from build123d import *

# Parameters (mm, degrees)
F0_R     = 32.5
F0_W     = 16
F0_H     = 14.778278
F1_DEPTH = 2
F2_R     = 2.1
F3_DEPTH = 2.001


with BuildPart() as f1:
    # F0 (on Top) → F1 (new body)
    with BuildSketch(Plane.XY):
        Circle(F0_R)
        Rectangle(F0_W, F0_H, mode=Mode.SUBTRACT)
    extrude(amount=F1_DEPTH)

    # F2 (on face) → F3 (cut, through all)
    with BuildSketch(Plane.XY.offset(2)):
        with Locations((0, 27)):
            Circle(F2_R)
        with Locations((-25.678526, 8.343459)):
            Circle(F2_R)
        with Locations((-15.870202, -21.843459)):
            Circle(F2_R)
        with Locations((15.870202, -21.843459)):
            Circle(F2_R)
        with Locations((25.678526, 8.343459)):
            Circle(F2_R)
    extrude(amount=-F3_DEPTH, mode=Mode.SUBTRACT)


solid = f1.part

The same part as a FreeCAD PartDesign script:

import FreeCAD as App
import Part
import Sketcher
from FreeCAD import Vector
Q = App.Units.Quantity


def add_polygon(sketch, points):
    """Adds a closed chain of lines whose ends are joined by coincident constraints."""
    first, n = sketch.GeometryCount, len(points)
    for a, b in zip(points, points[1:] + points[:1]):
        sketch.addGeometry(Part.LineSegment(App.Vector(*a, 0), App.Vector(*b, 0)), False)
    for i in range(n):
        sketch.addConstraint(Sketcher.Constraint("Coincident", first + i, 2, first + (i + 1) % n, 1))

doc = App.newDocument("Part")
body = doc.addObject("PartDesign::Body", "Body")

sketch1 = body.newObject("Sketcher::SketchObject", "Sketch")
sketch1.AttachmentSupport = (doc.getObject("XY_Plane"), [""])
sketch1.MapMode = "FlatFace"
sketch1.addGeometry(Part.Circle(Vector(0, 0, 0), Vector(0, 0, 1), 32), False)
add_polygon(sketch1, [(8, -7), (-8, -7), (-8, 7), (8, 7)])
sketch1.addConstraint([
    Sketcher.Constraint("Horizontal", 1),
    Sketcher.Constraint("Vertical", 2),
    Sketcher.Constraint("Horizontal", 3),
    Sketcher.Constraint("Vertical", 4),
    Sketcher.Constraint("Coincident", 0, 3, -1, 1),
    Sketcher.Constraint("Symmetric", 1, 2, 3, 2, -1, 1),
    Sketcher.Constraint("Diameter", 0, Q("65 mm")),
    Sketcher.Constraint("DistanceX", 1, 2, 1, 1, Q("16 mm")),
    Sketcher.Constraint("DistanceY", 2, 1, 2, 2, Q("14.778278 mm")),
])
pad1 = body.newObject("PartDesign::Pad", "Pad")
pad1.Profile = sketch1
pad1.Length = 2

sketch2 = body.newObject("Sketcher::SketchObject", "Sketch001")
sketch2.AttachmentSupport = (doc.getObject("XY_Plane"), [""])
sketch2.MapMode = "FlatFace"
sketch2.AttachmentOffset = App.Placement(Vector(0, 0, 2), App.Rotation())
sketch2.addGeometry([
    Part.Circle(Vector(0, 27, 0), Vector(0, 0, 1), 2.1),
    Part.Circle(Vector(-25.7, 8.3, 0), Vector(0, 0, 1), 2.1),
    Part.Circle(Vector(-15.9, -21.8, 0), Vector(0, 0, 1), 2.1),
    Part.Circle(Vector(15.9, -21.8, 0), Vector(0, 0, 1), 2.1),
    Part.Circle(Vector(25.7, 8.3, 0), Vector(0, 0, 1), 2.1),
], False)
sketch2.addConstraint([
    Sketcher.Constraint("Equal", 0, 1),
    Sketcher.Constraint("Equal", 1, 2),
    Sketcher.Constraint("Equal", 2, 3),
    Sketcher.Constraint("Equal", 3, 4),
    Sketcher.Constraint("Symmetric", 2, 3, 3, 3, -2),
    Sketcher.Constraint("Symmetric", 1, 3, 4, 3, -2),
    Sketcher.Constraint("PointOnObject", 0, 3, -2),
    Sketcher.Constraint("Diameter", 0, Q("4.2 mm")),
    Sketcher.Constraint("DistanceY", -1, 1, 0, 3, Q("27 mm")),
    Sketcher.Constraint("DistanceY", -1, 1, 1, 3, Q("8.343459 mm")),
    Sketcher.Constraint("DistanceY", 2, 3, -1, 1, Q("21.843459 mm")),
    Sketcher.Constraint("DistanceX", 1, 3, 3, 3, Q("41.548728 mm")),
    Sketcher.Constraint("DistanceX", 1, 3, -1, 1, Q("25.678526 mm")),
])
pocket1 = body.newObject("PartDesign::Pocket", "Pocket")
pocket1.Profile = sketch2
pocket1.Type = "ThroughAll"

doc.recompute()
